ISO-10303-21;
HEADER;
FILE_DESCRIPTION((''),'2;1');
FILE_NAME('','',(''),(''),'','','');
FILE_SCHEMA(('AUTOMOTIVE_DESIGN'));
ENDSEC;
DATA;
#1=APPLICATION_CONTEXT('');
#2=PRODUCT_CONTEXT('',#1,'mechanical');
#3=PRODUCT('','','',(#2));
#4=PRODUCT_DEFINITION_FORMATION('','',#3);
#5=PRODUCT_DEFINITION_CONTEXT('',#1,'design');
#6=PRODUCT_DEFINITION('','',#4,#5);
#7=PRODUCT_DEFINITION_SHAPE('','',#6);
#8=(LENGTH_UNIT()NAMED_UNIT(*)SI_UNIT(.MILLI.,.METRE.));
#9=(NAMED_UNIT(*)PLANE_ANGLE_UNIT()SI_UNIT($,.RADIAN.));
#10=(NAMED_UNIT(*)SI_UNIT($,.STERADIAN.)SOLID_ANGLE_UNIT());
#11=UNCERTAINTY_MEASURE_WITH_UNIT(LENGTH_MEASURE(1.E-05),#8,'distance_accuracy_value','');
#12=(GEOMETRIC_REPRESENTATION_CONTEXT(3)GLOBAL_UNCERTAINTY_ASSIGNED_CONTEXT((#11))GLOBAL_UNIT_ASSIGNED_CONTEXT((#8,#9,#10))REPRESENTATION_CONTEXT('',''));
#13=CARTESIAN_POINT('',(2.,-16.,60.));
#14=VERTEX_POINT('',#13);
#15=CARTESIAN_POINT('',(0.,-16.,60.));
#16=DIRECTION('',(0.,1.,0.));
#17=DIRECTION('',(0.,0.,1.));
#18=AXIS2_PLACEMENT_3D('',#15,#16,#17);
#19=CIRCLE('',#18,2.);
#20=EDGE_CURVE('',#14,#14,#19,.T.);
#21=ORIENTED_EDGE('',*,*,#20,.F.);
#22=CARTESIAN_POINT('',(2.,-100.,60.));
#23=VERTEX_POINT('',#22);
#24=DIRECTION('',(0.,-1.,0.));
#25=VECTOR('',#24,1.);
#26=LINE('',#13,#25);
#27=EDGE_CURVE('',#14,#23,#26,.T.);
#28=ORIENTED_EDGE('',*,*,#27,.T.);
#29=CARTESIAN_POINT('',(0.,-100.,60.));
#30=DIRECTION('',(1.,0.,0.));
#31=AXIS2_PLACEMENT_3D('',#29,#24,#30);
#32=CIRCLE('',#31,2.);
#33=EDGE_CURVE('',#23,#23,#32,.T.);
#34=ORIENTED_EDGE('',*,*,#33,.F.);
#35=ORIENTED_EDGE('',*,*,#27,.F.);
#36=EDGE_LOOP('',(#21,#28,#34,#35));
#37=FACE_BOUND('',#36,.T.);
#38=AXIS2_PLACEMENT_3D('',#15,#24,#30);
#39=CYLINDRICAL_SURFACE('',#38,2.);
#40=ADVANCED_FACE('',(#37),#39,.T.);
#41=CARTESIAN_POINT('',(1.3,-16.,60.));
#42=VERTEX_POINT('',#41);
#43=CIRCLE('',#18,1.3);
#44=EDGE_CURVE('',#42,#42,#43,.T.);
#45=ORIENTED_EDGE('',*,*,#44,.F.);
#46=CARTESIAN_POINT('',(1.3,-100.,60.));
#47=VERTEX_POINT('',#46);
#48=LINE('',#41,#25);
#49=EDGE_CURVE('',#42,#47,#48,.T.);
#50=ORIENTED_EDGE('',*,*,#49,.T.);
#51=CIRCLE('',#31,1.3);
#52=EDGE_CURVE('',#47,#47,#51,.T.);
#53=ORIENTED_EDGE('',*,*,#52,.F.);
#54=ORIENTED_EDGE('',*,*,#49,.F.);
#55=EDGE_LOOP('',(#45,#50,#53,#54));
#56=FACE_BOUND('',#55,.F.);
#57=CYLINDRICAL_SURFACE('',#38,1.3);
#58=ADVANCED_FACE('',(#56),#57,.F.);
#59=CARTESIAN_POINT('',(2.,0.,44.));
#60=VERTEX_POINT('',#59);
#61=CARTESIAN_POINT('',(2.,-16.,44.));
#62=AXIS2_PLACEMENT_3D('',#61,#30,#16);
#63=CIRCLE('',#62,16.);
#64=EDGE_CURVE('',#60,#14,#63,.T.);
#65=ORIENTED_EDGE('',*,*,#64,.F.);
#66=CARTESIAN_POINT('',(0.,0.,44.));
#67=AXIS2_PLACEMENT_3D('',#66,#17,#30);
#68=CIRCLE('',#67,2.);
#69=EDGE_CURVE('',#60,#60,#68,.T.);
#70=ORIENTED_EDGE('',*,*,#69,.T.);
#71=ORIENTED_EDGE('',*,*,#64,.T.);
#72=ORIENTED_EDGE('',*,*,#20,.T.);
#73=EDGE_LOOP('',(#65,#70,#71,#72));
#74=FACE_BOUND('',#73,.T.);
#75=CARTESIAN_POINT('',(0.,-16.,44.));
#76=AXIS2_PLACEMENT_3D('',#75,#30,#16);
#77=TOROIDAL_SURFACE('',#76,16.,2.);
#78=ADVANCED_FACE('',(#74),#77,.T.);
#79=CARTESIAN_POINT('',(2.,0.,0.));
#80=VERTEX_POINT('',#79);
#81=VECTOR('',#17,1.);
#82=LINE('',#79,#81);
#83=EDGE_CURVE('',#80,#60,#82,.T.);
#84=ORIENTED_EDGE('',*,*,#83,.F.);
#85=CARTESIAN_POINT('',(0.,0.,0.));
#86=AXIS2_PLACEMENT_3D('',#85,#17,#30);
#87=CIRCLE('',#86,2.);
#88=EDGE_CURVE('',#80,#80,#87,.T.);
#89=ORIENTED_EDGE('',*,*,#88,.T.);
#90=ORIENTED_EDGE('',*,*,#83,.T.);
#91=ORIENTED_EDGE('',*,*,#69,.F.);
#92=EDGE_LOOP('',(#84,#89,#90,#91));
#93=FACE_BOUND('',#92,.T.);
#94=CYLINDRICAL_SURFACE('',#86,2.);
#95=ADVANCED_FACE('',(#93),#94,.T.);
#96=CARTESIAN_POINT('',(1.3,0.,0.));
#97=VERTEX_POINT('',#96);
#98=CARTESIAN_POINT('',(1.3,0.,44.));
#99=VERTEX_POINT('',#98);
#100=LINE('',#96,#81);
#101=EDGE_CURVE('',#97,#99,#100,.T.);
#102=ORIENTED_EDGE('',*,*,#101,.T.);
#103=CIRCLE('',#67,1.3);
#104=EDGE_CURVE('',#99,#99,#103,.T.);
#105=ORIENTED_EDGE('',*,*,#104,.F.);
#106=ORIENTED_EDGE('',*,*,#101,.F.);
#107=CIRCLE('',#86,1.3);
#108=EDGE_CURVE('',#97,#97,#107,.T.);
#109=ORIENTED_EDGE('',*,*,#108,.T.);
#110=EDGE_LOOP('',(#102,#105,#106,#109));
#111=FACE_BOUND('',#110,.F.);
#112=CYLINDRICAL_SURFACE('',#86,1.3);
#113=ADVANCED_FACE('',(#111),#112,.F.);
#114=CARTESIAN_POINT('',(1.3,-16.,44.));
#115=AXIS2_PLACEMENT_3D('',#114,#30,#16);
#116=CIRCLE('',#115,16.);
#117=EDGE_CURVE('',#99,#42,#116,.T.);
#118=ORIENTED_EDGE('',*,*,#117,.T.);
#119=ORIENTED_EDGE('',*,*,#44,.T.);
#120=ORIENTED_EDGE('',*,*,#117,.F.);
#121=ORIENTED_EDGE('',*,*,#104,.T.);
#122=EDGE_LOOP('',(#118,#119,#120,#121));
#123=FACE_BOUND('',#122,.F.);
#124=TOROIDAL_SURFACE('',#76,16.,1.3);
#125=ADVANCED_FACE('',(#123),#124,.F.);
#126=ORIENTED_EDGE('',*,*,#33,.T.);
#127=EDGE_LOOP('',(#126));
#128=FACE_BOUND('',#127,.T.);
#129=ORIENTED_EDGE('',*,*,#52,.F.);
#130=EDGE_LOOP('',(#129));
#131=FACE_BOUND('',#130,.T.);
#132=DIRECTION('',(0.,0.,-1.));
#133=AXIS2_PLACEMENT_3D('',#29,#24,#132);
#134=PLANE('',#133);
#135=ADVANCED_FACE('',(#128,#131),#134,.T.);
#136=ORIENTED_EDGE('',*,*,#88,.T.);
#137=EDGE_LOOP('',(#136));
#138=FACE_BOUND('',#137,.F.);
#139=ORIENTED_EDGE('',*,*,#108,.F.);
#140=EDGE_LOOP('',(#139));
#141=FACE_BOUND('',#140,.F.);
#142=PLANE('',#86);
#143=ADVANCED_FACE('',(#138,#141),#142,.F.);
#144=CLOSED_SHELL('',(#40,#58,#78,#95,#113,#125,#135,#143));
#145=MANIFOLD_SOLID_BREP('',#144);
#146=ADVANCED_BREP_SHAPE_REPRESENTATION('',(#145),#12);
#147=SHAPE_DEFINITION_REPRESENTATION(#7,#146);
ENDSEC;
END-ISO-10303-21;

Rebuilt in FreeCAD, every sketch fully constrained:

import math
import FreeCAD as App
import Part
import Sketcher

doc = App.newDocument("Part")
body = doc.addObject("PartDesign::Body", "Body")

# Sketch on XY plane
sketch1 = doc.addObject("Sketcher::SketchObject", "Sketch")
body.addObject(sketch1)
sketch1.AttachmentSupport = (doc.XY_Plane, [""])
sketch1.MapMode = "FlatFace"
sketch1.addGeometry([
    Part.Circle(App.Vector(0, 0, 0), App.Vector(0, 0, 1), 2),
    Part.Circle(App.Vector(0, 0, 0), App.Vector(0, 0, 1), 1.3),
], False)
sketch1.addConstraint([
    Sketcher.Constraint("Coincident", 0, 3, -1, 1),
    Sketcher.Constraint("Coincident", 1, 3, -1, 1),
    Sketcher.Constraint("Diameter", 0, 4.0),
    Sketcher.Constraint("Diameter", 1, 2.6),
])

# Sketch on YZ plane
sketch2 = doc.addObject("Sketcher::SketchObject", "Sketch001")
body.addObject(sketch2)
sketch2.AttachmentSupport = (doc.YZ_Plane, [""])
sketch2.MapMode = "FlatFace"
sketch2.addGeometry([
    Part.LineSegment(App.Vector(0, 0, 0), App.Vector(0, 44, 0)),
    Part.ArcOfCircle(Part.Circle(App.Vector(-16, 44, 0), App.Vector(0, 0, 1), 16), math.radians(0), math.radians(90)),
    Part.LineSegment(App.Vector(-16, 60, 0), App.Vector(-100, 60, 0)),
], False)
sketch2.addConstraint([
    Sketcher.Constraint("Tangent", 0, 2, 1, 1),
    Sketcher.Constraint("Tangent", 1, 2, 2, 1),
    Sketcher.Constraint("Vertical", 0),
    Sketcher.Constraint("Horizontal", 2),
    Sketcher.Constraint("Coincident", 0, 1, -1, 1),
    Sketcher.Constraint("Radius", 1, 16.0),
    Sketcher.Constraint("DistanceX", 2, 2, 2, 1, 84.0),
    Sketcher.Constraint("DistanceY", 0, 1, 0, 2, 44.0),
])
doc.recompute()

additivepipe = doc.addObject("PartDesign::AdditivePipe", "AdditivePipe")
body.addObject(additivepipe)
additivepipe.Profile = sketch1
additivepipe.Spine = (sketch2, ["Edge1", "Edge2", "Edge3"])

doc.recompute()
